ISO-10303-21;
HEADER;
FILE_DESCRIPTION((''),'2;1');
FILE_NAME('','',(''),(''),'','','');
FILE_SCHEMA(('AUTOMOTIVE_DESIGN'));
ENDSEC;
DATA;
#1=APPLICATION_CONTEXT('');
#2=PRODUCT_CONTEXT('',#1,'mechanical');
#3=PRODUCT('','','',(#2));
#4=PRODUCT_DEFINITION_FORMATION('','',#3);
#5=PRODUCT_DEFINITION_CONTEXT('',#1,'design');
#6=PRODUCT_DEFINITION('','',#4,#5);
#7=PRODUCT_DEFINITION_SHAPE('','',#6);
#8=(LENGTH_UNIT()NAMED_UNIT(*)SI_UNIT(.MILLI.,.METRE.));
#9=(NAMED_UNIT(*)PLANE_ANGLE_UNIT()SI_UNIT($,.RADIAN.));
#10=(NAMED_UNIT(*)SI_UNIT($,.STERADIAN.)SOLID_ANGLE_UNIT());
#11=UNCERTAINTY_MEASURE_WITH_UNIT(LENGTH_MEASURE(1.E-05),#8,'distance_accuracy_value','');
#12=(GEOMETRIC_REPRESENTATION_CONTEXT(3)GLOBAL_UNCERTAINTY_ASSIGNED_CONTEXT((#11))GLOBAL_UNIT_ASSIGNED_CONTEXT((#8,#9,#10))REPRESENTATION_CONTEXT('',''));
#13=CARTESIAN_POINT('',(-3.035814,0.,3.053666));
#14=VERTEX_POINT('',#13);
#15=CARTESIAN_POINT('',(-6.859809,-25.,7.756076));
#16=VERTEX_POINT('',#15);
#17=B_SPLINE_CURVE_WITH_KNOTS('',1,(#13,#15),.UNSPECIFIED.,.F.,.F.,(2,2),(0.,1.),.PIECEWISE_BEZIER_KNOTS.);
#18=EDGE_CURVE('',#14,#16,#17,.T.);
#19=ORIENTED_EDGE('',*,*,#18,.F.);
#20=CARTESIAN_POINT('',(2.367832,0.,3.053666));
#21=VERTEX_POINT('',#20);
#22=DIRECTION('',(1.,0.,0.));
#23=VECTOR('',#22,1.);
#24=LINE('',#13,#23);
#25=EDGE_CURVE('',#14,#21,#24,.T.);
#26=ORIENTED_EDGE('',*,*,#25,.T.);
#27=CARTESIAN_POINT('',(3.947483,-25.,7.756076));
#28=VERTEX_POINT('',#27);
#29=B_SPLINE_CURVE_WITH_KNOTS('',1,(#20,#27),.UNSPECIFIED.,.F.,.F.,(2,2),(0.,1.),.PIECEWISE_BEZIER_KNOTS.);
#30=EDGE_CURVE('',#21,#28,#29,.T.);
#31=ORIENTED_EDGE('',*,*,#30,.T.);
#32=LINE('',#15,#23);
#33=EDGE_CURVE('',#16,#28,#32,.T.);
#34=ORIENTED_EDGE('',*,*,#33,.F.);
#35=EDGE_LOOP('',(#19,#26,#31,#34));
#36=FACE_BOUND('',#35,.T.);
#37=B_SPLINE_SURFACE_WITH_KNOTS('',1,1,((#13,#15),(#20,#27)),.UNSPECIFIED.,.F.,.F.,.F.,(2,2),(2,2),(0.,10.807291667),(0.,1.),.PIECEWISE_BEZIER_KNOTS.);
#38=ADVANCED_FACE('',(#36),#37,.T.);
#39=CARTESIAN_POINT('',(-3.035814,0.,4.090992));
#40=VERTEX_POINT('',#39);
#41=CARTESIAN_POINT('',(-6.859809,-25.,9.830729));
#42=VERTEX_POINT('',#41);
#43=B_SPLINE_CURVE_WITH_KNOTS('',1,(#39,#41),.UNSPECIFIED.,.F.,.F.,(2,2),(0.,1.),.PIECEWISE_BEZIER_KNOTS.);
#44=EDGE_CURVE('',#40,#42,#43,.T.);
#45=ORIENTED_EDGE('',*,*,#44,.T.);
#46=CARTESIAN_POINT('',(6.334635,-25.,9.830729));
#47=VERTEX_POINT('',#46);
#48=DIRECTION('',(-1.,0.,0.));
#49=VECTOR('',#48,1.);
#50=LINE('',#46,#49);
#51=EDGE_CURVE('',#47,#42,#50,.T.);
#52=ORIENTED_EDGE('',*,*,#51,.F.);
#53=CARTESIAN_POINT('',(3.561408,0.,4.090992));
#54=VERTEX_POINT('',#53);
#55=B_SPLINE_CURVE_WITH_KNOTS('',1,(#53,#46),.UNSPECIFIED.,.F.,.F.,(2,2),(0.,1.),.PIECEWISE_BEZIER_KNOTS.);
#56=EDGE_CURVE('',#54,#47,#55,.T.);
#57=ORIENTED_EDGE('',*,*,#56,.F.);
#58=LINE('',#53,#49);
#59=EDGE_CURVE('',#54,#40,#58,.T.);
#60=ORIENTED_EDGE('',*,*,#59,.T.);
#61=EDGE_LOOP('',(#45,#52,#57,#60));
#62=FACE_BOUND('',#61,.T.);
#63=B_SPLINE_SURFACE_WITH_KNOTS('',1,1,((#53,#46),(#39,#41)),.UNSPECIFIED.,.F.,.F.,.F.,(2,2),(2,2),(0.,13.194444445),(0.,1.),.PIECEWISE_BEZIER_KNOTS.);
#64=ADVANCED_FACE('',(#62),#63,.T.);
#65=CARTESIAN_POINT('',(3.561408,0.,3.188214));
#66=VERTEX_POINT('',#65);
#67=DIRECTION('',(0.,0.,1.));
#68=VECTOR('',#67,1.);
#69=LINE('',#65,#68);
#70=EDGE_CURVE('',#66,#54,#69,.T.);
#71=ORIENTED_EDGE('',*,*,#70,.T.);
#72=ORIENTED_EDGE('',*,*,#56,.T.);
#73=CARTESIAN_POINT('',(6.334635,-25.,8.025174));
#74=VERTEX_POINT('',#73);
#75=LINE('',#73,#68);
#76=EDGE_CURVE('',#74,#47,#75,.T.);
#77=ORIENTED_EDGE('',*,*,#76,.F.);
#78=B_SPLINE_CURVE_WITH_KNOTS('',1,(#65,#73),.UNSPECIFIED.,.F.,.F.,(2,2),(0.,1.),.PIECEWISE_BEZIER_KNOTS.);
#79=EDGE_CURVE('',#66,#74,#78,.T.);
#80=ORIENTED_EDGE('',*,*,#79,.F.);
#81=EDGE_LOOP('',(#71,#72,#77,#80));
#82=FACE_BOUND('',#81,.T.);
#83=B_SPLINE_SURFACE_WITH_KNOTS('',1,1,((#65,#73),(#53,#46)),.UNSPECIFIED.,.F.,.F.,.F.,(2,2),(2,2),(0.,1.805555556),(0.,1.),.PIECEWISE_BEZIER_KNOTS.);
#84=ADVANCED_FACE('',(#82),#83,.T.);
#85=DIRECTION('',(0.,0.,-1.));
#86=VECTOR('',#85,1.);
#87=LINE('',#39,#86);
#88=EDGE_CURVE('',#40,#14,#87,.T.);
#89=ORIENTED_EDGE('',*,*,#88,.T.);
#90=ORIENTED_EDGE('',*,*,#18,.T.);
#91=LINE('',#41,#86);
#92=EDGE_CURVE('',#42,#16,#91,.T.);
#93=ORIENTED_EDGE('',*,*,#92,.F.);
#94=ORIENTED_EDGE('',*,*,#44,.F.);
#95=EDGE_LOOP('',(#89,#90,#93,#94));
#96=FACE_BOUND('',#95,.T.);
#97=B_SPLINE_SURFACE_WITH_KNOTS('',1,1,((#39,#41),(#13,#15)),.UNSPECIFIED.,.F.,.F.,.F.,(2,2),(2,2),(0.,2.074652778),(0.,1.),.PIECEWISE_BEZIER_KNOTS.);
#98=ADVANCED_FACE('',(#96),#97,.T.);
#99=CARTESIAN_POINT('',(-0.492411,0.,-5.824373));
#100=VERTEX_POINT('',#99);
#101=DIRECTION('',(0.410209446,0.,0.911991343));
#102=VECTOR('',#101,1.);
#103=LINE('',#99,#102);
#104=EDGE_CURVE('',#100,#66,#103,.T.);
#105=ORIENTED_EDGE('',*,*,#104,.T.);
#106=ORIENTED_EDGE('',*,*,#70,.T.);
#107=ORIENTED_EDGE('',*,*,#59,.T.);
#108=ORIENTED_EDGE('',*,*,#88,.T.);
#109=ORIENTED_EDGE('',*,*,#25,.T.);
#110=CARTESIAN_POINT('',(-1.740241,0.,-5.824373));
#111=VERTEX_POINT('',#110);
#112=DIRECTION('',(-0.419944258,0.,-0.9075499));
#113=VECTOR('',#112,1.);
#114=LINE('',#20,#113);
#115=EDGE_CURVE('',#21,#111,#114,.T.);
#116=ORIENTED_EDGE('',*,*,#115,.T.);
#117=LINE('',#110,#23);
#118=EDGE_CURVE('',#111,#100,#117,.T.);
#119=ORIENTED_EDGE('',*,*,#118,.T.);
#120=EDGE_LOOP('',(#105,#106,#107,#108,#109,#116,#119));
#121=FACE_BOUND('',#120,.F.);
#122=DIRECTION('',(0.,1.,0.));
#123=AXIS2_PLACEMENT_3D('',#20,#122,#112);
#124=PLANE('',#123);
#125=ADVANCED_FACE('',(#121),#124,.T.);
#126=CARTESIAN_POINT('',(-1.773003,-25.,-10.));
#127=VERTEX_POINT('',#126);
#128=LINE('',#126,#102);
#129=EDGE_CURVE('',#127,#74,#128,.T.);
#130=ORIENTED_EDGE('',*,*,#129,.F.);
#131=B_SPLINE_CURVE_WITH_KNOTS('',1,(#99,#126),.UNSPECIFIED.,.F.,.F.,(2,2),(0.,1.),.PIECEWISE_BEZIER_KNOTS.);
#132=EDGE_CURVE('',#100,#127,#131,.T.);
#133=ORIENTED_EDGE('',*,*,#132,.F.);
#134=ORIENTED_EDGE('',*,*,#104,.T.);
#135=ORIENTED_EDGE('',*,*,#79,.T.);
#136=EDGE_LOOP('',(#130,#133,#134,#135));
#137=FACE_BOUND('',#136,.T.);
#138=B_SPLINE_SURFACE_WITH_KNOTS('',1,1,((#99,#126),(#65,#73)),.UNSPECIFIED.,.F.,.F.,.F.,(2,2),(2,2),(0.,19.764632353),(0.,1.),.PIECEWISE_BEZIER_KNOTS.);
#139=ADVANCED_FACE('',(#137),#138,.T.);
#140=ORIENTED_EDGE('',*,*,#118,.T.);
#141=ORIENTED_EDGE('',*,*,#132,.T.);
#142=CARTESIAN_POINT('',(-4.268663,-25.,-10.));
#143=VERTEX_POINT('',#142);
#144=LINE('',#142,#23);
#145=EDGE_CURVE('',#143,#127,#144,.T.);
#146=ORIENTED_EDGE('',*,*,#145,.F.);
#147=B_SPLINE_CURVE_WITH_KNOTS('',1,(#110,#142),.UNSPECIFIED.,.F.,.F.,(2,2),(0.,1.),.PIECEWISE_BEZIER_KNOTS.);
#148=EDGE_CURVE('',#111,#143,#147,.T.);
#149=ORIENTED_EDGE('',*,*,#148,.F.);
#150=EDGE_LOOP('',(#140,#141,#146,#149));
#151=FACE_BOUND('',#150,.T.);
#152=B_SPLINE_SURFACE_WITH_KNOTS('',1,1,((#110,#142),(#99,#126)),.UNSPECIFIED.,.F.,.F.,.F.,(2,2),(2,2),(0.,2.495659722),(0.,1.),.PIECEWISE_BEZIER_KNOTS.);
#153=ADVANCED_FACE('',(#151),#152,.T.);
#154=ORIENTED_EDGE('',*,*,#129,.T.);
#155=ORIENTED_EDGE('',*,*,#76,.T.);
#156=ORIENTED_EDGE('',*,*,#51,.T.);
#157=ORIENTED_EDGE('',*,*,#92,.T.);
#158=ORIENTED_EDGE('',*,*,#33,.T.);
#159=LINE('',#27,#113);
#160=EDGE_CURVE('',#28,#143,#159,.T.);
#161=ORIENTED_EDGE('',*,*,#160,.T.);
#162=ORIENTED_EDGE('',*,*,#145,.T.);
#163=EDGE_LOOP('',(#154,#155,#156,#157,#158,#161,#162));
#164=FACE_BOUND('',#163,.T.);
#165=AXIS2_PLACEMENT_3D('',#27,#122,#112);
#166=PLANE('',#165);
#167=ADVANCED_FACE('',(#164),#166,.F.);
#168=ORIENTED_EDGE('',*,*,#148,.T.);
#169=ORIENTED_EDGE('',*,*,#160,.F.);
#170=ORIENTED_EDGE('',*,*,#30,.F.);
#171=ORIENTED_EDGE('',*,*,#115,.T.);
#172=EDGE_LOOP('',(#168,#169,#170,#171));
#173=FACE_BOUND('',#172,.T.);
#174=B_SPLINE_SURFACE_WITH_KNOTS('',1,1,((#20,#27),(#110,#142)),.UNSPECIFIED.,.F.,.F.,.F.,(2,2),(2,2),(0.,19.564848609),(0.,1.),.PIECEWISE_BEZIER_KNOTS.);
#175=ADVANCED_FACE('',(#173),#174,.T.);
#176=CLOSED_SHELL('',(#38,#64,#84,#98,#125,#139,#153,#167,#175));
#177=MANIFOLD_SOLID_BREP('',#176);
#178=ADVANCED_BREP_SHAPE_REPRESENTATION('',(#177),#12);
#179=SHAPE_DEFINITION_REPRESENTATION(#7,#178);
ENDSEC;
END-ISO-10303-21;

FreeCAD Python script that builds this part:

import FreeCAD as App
import Part
import Sketcher
Q = App.Units.Quantity

doc = App.newDocument("Part")
body = doc.addObject("PartDesign::Body", "Body")

# Sketch on XZ plane
sketch1 = body.newObject("Sketcher::SketchObject", "Sketch")
sketch1.AttachmentSupport = (doc.getObject("XZ_Plane"), [""])
sketch1.MapMode = "FlatFace"
sketch1.addGeometry(Part.LineSegment(App.Vector(2.4, 3.1, 0), App.Vector(-1.7, -5.8, 0)), False)
sketch1.addGeometry(Part.LineSegment(App.Vector(-1.7, -5.8, 0), App.Vector(-0.5, -5.8, 0)), False)
sketch1.addGeometry(Part.LineSegment(App.Vector(-0.5, -5.8, 0), App.Vector(3.6, 3.2, 0)), False)
sketch1.addGeometry(Part.LineSegment(App.Vector(3.6, 3.2, 0), App.Vector(3.6, 4.1, 0)), False)
sketch1.addGeometry(Part.LineSegment(App.Vector(3.6, 4.1, 0), App.Vector(-3, 4.1, 0)), False)
sketch1.addGeometry(Part.LineSegment(App.Vector(-3, 4.1, 0), App.Vector(-3, 3.1, 0)), False)
sketch1.addGeometry(Part.LineSegment(App.Vector(-3, 3.1, 0), App.Vector(2.4, 3.1, 0)), False)
sketch1.addConstraint(Sketcher.Constraint("Coincident", 0, 2, 1, 1))
sketch1.addConstraint(Sketcher.Constraint("Coincident", 1, 2, 2, 1))
sketch1.addConstraint(Sketcher.Constraint("Coincident", 2, 2, 3, 1))
sketch1.addConstraint(Sketcher.Constraint("Coincident", 3, 2, 4, 1))
sketch1.addConstraint(Sketcher.Constraint("Coincident", 4, 2, 5, 1))
sketch1.addConstraint(Sketcher.Constraint("Coincident", 5, 2, 6, 1))
sketch1.addConstraint(Sketcher.Constraint("Coincident", 6, 2, 0, 1))
sketch1.addConstraint(Sketcher.Constraint("Horizontal", 1))
sketch1.addConstraint(Sketcher.Constraint("Vertical", 3))
sketch1.addConstraint(Sketcher.Constraint("Horizontal", 4))
sketch1.addConstraint(Sketcher.Constraint("Vertical", 5))
sketch1.addConstraint(Sketcher.Constraint("Horizontal", 6))
sketch1.addConstraint(Sketcher.Constraint("DistanceX", 1, 1, 1, 2, Q("1.24783 mm")))
sketch1.addConstraint(Sketcher.Constraint("DistanceX", 4, 2, 4, 1, Q("6.597222 mm")))
sketch1.addConstraint(Sketcher.Constraint("DistanceX", 6, 1, 6, 2, Q("5.403646 mm")))
sketch1.addConstraint(Sketcher.Constraint("DistanceY", 3, 1, 3, 2, Q("0.902778 mm")))
sketch1.addConstraint(Sketcher.Constraint("DistanceY", 5, 2, 5, 1, Q("1.037326 mm")))
sketch1.addConstraint(Sketcher.Constraint("DistanceX", 0, 2, -1, 1, Q("1.740241 mm")))
sketch1.addConstraint(Sketcher.Constraint("DistanceY", -1, 1, 3, 2, Q("4.090992 mm")))
sketch1.addConstraint(Sketcher.Constraint("DistanceX", -1, 1, 6, 2, Q("2.367832 mm")))
sketch1.addConstraint(Sketcher.Constraint("DistanceY", 0, 2, 5, 2, Q("8.878038 mm")))

# Sketch on XZ plane
sketch2 = body.newObject("Sketcher::SketchObject", "Sketch001")
sketch2.AttachmentSupport = (doc.getObject("XZ_Plane"), [""])
sketch2.MapMode = "FlatFace"
sketch2.AttachmentOffset = App.Placement(App.Vector(0, 0, 25), App.Rotation())
sketch2.addGeometry(Part.LineSegment(App.Vector(-4.3, -10, 0), App.Vector(-1.8, -10, 0)), False)
sketch2.addGeometry(Part.LineSegment(App.Vector(-1.8, -10, 0), App.Vector(6.3, 8, 0)), False)
sketch2.addGeometry(Part.LineSegment(App.Vector(6.3, 8, 0), App.Vector(6.3, 9.8, 0)), False)
sketch2.addGeometry(Part.LineSegment(App.Vector(6.3, 9.8, 0), App.Vector(-6.9, 9.8, 0)), False)
sketch2.addGeometry(Part.LineSegment(App.Vector(-6.9, 9.8, 0), App.Vector(-6.9, 7.8, 0)), False)
sketch2.addGeometry(Part.LineSegment(App.Vector(-6.9, 7.8, 0), App.Vector(3.9, 7.8, 0)), False)
sketch2.addGeometry(Part.LineSegment(App.Vector(3.9, 7.8, 0), App.Vector(-4.3, -10, 0)), False)
sketch2.addConstraint(Sketcher.Constraint("Coincident", 0, 2, 1, 1))
sketch2.addConstraint(Sketcher.Constraint("Coincident", 1, 2, 2, 1))
sketch2.addConstraint(Sketcher.Constraint("Coincident", 2, 2, 3, 1))
sketch2.addConstraint(Sketcher.Constraint("Coincident", 3, 2, 4, 1))
sketch2.addConstraint(Sketcher.Constraint("Coincident", 4, 2, 5, 1))
sketch2.addConstraint(Sketcher.Constraint("Coincident", 5, 2, 6, 1))
sketch2.addConstraint(Sketcher.Constraint("Coincident", 6, 2, 0, 1))
sketch2.addConstraint(Sketcher.Constraint("Horizontal", 0))
sketch2.addConstraint(Sketcher.Constraint("Vertical", 2))
sketch2.addConstraint(Sketcher.Constraint("Horizontal", 3))
sketch2.addConstraint(Sketcher.Constraint("Vertical", 4))
sketch2.addConstraint(Sketcher.Constraint("Horizontal", 5))
sketch2.addConstraint(Sketcher.Constraint("DistanceY", 0, 2, -1, 1, Q("10 mm")))
sketch2.addConstraint(Sketcher.Constraint("DistanceX", 0, 1, 0, 2, Q("2.49566 mm")))
sketch2.addConstraint(Sketcher.Constraint("DistanceX", 5, 1, 5, 2, Q("10.807292 mm")))
sketch2.addConstraint(Sketcher.Constraint("DistanceX", 6, 2, 1, 2, Q("10.603299 mm")))
sketch2.addConstraint(Sketcher.Constraint("Distance", 6, Q("19.564849 mm")))
sketch2.addConstraint(Sketcher.Constraint("DistanceX", 3, 2, 3, 1, Q("13.194444 mm")))
sketch2.addConstraint(Sketcher.Constraint("DistanceY", 2, 1, 2, 2, Q("1.805556 mm")))
sketch2.addConstraint(Sketcher.Constraint("DistanceY", 4, 2, 4, 1, Q("2.074653 mm")))
sketch2.addConstraint(Sketcher.Constraint("DistanceX", 3, 2, -1, 1, Q("6.859809 mm")))

additiveloft = body.newObject("PartDesign::AdditiveLoft", "AdditiveLoft")
additiveloft.Profile = sketch1
additiveloft.Sections = [sketch2]

doc.recompute()
